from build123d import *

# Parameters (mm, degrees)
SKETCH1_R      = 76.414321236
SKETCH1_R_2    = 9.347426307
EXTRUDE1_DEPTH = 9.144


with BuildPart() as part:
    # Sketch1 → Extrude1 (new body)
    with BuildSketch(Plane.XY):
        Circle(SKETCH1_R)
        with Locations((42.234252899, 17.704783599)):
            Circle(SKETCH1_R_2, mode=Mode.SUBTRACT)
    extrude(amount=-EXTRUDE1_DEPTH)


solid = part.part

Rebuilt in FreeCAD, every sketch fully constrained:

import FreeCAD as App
import Part
import Sketcher
Q = App.Units.Quantity

doc = App.newDocument("Part")
body = doc.addObject("PartDesign::Body", "Body")

sketch1 = body.newObject("Sketcher::SketchObject", "Sketch")
sketch1.AttachmentSupport = (doc.getObject("XY_Plane"), [""])
sketch1.MapMode = "FlatFace"
sketch1.addGeometry(Part.Circle(App.Vector(0, 0, 0), App.Vector(0, 0, 1), 76), False)
sketch1.addGeometry(Part.Circle(App.Vector(42, 18, 0), App.Vector(0, 0, 1), 9), False)
sketch1.addConstraint(Sketcher.Constraint("Coincident", 0, 3, -1, 1))
sketch1.addConstraint(Sketcher.Constraint("Diameter", 0, 152.828642))
sketch1.addConstraint(Sketcher.Constraint("Diameter", 1, 18.694853))
sketch1.addConstraint(Sketcher.Constraint("DistanceX", -1, 1, 1, 3, 42.234253))
sketch1.addConstraint(Sketcher.Constraint("DistanceY", -1, 1, 1, 3, 17.704784))
pad1 = body.newObject("PartDesign::Pad", "Pad")
pad1.Profile = sketch1
pad1.Length = Q("0.36 in")
pad1.Reversed = True

doc.recompute()
